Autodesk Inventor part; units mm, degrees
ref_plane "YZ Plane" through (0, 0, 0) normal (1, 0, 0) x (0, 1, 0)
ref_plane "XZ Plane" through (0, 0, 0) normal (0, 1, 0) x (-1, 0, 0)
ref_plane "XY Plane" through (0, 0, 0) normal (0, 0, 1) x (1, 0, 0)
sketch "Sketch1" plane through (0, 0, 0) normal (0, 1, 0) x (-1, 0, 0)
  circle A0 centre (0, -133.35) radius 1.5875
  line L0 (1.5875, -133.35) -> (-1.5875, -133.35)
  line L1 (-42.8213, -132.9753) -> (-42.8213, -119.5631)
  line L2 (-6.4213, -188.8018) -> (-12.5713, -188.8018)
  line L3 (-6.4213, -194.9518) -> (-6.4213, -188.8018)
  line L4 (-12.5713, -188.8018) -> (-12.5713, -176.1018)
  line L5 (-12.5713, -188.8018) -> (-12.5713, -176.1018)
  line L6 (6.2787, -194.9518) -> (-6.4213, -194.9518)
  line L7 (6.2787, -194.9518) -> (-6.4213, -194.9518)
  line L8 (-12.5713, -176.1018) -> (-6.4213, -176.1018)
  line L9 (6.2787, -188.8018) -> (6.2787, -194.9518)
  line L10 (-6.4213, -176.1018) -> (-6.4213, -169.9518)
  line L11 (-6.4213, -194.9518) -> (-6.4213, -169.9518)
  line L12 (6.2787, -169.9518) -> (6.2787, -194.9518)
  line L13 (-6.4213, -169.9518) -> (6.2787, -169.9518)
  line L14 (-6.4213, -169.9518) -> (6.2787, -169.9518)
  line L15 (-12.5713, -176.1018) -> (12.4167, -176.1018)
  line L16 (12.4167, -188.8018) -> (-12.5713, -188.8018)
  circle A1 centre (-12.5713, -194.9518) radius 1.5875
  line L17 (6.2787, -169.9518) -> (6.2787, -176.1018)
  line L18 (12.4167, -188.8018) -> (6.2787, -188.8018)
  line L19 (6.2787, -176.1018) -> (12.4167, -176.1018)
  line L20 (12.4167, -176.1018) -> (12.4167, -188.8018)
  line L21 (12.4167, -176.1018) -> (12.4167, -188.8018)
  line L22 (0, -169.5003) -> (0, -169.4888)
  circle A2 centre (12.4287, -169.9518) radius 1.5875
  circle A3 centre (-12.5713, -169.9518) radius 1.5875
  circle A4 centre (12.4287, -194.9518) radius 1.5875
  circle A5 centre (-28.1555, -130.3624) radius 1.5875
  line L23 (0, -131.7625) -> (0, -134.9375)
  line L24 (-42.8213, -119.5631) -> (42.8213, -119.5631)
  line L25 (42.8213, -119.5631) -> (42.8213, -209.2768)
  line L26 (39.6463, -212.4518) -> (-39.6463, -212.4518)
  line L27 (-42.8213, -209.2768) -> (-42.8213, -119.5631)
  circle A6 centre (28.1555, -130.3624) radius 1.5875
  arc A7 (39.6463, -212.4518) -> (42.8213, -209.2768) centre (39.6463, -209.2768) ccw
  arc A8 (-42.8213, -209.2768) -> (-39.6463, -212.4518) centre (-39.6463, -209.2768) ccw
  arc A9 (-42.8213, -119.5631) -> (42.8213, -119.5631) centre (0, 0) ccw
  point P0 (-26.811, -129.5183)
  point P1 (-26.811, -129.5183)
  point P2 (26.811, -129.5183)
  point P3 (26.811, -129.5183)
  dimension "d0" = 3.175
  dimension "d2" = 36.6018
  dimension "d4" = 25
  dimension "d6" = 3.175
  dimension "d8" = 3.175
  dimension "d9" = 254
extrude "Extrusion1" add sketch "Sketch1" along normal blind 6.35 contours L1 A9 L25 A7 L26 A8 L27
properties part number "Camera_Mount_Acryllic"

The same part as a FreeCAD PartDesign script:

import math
import FreeCAD as App
import Part
import Sketcher
from FreeCAD import Vector
Q = App.Units.Quantity

doc = App.newDocument("Part")
body = doc.addObject("PartDesign::Body", "Body")

sketch1 = doc.addObject("Sketcher::SketchObject", "Sketch")
body.addObject(sketch1)
sketch1.AttachmentSupport = (doc.XZ_Plane, [""])
sketch1.MapMode = "FlatFace"
sketch1.addGeometry(Part.LineSegment(Vector(42.8, -119.6, 0), Vector(42.8, -209.3, 0)), False)
sketch1.addGeometry(Part.ArcOfCircle(Part.Circle(Vector(39.6, -209.3, 0), Vector(0, 0, 1), 3.2), math.radians(-90), math.radians(0)), False)
sketch1.addGeometry(Part.LineSegment(Vector(39.6, -212.5, 0), Vector(-39.6, -212.5, 0)), False)
sketch1.addGeometry(Part.ArcOfCircle(Part.Circle(Vector(-39.6, -209.3, 0), Vector(0, 0, 1), 3.2), math.radians(180), math.radians(270)), False)
sketch1.addGeometry(Part.LineSegment(Vector(-42.8, -209.3, 0), Vector(-42.8, -119.6, 0)), False)
sketch1.addGeometry(Part.ArcOfCircle(Part.Circle(Vector(0, 0, 0), Vector(0, 0, 1), 127), math.radians(-110), math.radians(-70)), False)
sketch1.addGeometry(Part.Circle(Vector(12.6, -195, 0), Vector(0, 0, 1), 1.6), False)
sketch1.addGeometry(Part.LineSegment(Vector(6.4, -195, 0), Vector(6.4, -188.8, 0)), False)
sketch1.addGeometry(Part.LineSegment(Vector(6.4, -188.8, 0), Vector(12.6, -188.8, 0)), False)
sketch1.addGeometry(Part.LineSegment(Vector(12.6, -188.8, 0), Vector(12.6, -176.1, 0)), False)
sketch1.addGeometry(Part.LineSegment(Vector(12.6, -176.1, 0), Vector(6.4, -176.1, 0)), False)
sketch1.addGeometry(Part.LineSegment(Vector(6.4, -176.1, 0), Vector(6.4, -170, 0)), False)
sketch1.addGeometry(Part.LineSegment(Vector(6.4, -170, 0), Vector(-6.3, -170, 0)), False)
sketch1.addGeometry(Part.LineSegment(Vector(-6.3, -170, 0), Vector(-6.3, -176.1, 0)), False)
sketch1.addGeometry(Part.LineSegment(Vector(-6.3, -176.1, 0), Vector(-12.4, -176.1, 0)), False)
sketch1.addGeometry(Part.LineSegment(Vector(-12.4, -176.1, 0), Vector(-12.4, -188.8, 0)), False)
sketch1.addGeometry(Part.LineSegment(Vector(-12.4, -188.8, 0), Vector(-6.3, -188.8, 0)), False)
sketch1.addGeometry(Part.LineSegment(Vector(-6.3, -188.8, 0), Vector(-6.3, -195, 0)), False)
sketch1.addGeometry(Part.LineSegment(Vector(-6.3, -195, 0), Vector(6.4, -195, 0)), False)
sketch1.addGeometry(Part.Circle(Vector(12.6, -170, 0), Vector(0, 0, 1), 1.6), False)
sketch1.addGeometry(Part.Circle(Vector(-12.4, -195, 0), Vector(0, 0, 1), 1.6), False)
sketch1.addGeometry(Part.Circle(Vector(-12.4, -170, 0), Vector(0, 0, 1), 1.6), False)
sketch1.addGeometry(Part.Circle(Vector(28.2, -130.4, 0), Vector(0, 0, 1), 1.6), False)
sketch1.addGeometry(Part.Circle(Vector(0, -133.3, 0), Vector(0, 0, 1), 1.6), False)
sketch1.addGeometry(Part.Circle(Vector(-28.2, -130.4, 0), Vector(0, 0, 1), 1.6), False)
sketch1.addConstraint(Sketcher.Constraint("Tangent", 0, 2, 1, 2))
sketch1.addConstraint(Sketcher.Constraint("Tangent", 1, 1, 2, 1))
sketch1.addConstraint(Sketcher.Constraint("Tangent", 2, 2, 3, 2))
sketch1.addConstraint(Sketcher.Constraint("Tangent", 3, 1, 4, 1))
sketch1.addConstraint(Sketcher.Constraint("Coincident", 4, 2, 5, 1))
sketch1.addConstraint(Sketcher.Constraint("Coincident", 5, 2, 0, 1))
sketch1.addConstraint(Sketcher.Constraint("Coincident", 7, 2, 8, 1))
sketch1.addConstraint(Sketcher.Constraint("Coincident", 8, 2, 9, 1))
sketch1.addConstraint(Sketcher.Constraint("Coincident", 9, 2, 10, 1))
sketch1.addConstraint(Sketcher.Constraint("Coincident", 10, 2, 11, 1))
sketch1.addConstraint(Sketcher.Constraint("Coincident", 11, 2, 12, 1))
sketch1.addConstraint(Sketcher.Constraint("Coincident", 12, 2, 13, 1))
sketch1.addConstraint(Sketcher.Constraint("Coincident", 13, 2, 14, 1))
sketch1.addConstraint(Sketcher.Constraint("Coincident", 14, 2, 15, 1))
sketch1.addConstraint(Sketcher.Constraint("Coincident", 15, 2, 16, 1))
sketch1.addConstraint(Sketcher.Constraint("Coincident", 16, 2, 17, 1))
sketch1.addConstraint(Sketcher.Constraint("Coincident", 17, 2, 18, 1))
sketch1.addConstraint(Sketcher.Constraint("Coincident", 18, 2, 7, 1))
sketch1.addConstraint(Sketcher.Constraint("Vertical", 0))
sketch1.addConstraint(Sketcher.Constraint("Horizontal", 2))
sketch1.addConstraint(Sketcher.Constraint("Vertical", 4))
sketch1.addConstraint(Sketcher.Constraint("Vertical", 7))
sketch1.addConstraint(Sketcher.Constraint("Horizontal", 8))
sketch1.addConstraint(Sketcher.Constraint("Vertical", 9))
sketch1.addConstraint(Sketcher.Constraint("Horizontal", 10))
sketch1.addConstraint(Sketcher.Constraint("Vertical", 11))
sketch1.addConstraint(Sketcher.Constraint("Horizontal", 12))
sketch1.addConstraint(Sketcher.Constraint("Vertical", 13))
sketch1.addConstraint(Sketcher.Constraint("Horizontal", 14))
sketch1.addConstraint(Sketcher.Constraint("Vertical", 15))
sketch1.addConstraint(Sketcher.Constraint("Horizontal", 16))
sketch1.addConstraint(Sketcher.Constraint("Vertical", 17))
sketch1.addConstraint(Sketcher.Constraint("Horizontal", 18))
sketch1.addConstraint(Sketcher.Constraint("Coincident", 5, 3, -1, 1))
sketch1.addConstraint(Sketcher.Constraint("Equal", 1, 3))
sketch1.addConstraint(Sketcher.Constraint("Equal", 6, 19))
sketch1.addConstraint(Sketcher.Constraint("Equal", 19, 20))
sketch1.addConstraint(Sketcher.Constraint("Equal", 20, 21))
sketch1.addConstraint(Sketcher.Constraint("Equal", 21, 22))
sketch1.addConstraint(Sketcher.Constraint("Equal", 22, 23))
sketch1.addConstraint(Sketcher.Constraint("Equal", 23, 24))
sketch1.addConstraint(Sketcher.Constraint("Symmetric", 22, 3, 24, 3, -2))
sketch1.addConstraint(Sketcher.Constraint("PointOnObject", 23, 3, -2))
sketch1.addConstraint(Sketcher.Constraint("Horizontal", 6, 3, 20, 3))
sketch1.addConstraint(Sketcher.Constraint("Horizontal", 19, 3, 21, 3))
sketch1.addConstraint(Sketcher.Constraint("Horizontal", 4, 2, 5, 2))
sketch1.addConstraint(Sketcher.Constraint("Horizontal", 21, 3, 11, 2))
sketch1.addConstraint(Sketcher.Constraint("Horizontal", 10, 2, 13, 2))
sketch1.addConstraint(Sketcher.Constraint("Horizontal", 8, 2, 15, 2))
sketch1.addConstraint(Sketcher.Constraint("Horizontal", 20, 3, 17, 2))
sketch1.addConstraint(Sketcher.Constraint("Vertical", 6, 3, 19, 3))
sketch1.addConstraint(Sketcher.Constraint("Vertical", 20, 3, 21, 3))
sketch1.addConstraint(Sketcher.Constraint("Vertical", 19, 3, 8, 2))
sketch1.addConstraint(Sketcher.Constraint("Vertical", 7, 2, 10, 2))
sketch1.addConstraint(Sketcher.Constraint("Vertical", 13, 2, 16, 2))
sketch1.addConstraint(Sketcher.Constraint("Equal", 10, 7))
sketch1.addConstraint(Sketcher.Constraint("Equal", 18, 9))
sketch1.addConstraint(Sketcher.Constraint("Equal", 7, 11))
sketch1.addConstraint(Sketcher.Constraint("Radius", 5, Q("5 in")))
sketch1.addConstraint(Sketcher.Constraint("Diameter", 6, Q("0.125 in")))
sketch1.addConstraint(Sketcher.Constraint("Radius", 1, Q("0.125 in")))
sketch1.addConstraint(Sketcher.Constraint("DistanceX", 12, 2, 12, 1, Q("0.5 in")))
sketch1.addConstraint(Sketcher.Constraint("DistanceY", 23, 3, -1, 1, Q("5.25 in")))
sketch1.addConstraint(Sketcher.Constraint("DistanceY", 6, 3, 19, 3, Q("25 mm")))
sketch1.addConstraint(Sketcher.Constraint("DistanceX", 20, 3, 6, 3, Q("25 mm")))
sketch1.addConstraint(Sketcher.Constraint("DistanceY", 21, 3, 23, 3, Q("36.6018 mm")))
sketch1.addConstraint(Sketcher.Constraint("DistanceX", 2, 2, 2, 1, Q("79.2926 mm")))
sketch1.addConstraint(Sketcher.Constraint("DistanceX", 14, 2, 14, 1, Q("6.138 mm")))
sketch1.addConstraint(Sketcher.Constraint("DistanceY", 0, 2, 0, 1, Q("89.7137 mm")))
sketch1.addConstraint(Sketcher.Constraint("DistanceX", -1, 1, 7, 2, Q("0.2528 in")))
sketch1.addConstraint(Sketcher.Constraint("DistanceX", 21, 3, 22, 3, Q("1.5978 in")))
sketch1.addConstraint(Sketcher.Constraint("DistanceY", 6, 3, 22, 3, Q("2.5429 in")))
pad1 = doc.addObject("PartDesign::Pad", "Pad")
body.addObject(pad1)
pad1.Profile = sketch1
pad1.Length = Q("0.25 in")
pad1.Reversed = True

doc.recompute()
